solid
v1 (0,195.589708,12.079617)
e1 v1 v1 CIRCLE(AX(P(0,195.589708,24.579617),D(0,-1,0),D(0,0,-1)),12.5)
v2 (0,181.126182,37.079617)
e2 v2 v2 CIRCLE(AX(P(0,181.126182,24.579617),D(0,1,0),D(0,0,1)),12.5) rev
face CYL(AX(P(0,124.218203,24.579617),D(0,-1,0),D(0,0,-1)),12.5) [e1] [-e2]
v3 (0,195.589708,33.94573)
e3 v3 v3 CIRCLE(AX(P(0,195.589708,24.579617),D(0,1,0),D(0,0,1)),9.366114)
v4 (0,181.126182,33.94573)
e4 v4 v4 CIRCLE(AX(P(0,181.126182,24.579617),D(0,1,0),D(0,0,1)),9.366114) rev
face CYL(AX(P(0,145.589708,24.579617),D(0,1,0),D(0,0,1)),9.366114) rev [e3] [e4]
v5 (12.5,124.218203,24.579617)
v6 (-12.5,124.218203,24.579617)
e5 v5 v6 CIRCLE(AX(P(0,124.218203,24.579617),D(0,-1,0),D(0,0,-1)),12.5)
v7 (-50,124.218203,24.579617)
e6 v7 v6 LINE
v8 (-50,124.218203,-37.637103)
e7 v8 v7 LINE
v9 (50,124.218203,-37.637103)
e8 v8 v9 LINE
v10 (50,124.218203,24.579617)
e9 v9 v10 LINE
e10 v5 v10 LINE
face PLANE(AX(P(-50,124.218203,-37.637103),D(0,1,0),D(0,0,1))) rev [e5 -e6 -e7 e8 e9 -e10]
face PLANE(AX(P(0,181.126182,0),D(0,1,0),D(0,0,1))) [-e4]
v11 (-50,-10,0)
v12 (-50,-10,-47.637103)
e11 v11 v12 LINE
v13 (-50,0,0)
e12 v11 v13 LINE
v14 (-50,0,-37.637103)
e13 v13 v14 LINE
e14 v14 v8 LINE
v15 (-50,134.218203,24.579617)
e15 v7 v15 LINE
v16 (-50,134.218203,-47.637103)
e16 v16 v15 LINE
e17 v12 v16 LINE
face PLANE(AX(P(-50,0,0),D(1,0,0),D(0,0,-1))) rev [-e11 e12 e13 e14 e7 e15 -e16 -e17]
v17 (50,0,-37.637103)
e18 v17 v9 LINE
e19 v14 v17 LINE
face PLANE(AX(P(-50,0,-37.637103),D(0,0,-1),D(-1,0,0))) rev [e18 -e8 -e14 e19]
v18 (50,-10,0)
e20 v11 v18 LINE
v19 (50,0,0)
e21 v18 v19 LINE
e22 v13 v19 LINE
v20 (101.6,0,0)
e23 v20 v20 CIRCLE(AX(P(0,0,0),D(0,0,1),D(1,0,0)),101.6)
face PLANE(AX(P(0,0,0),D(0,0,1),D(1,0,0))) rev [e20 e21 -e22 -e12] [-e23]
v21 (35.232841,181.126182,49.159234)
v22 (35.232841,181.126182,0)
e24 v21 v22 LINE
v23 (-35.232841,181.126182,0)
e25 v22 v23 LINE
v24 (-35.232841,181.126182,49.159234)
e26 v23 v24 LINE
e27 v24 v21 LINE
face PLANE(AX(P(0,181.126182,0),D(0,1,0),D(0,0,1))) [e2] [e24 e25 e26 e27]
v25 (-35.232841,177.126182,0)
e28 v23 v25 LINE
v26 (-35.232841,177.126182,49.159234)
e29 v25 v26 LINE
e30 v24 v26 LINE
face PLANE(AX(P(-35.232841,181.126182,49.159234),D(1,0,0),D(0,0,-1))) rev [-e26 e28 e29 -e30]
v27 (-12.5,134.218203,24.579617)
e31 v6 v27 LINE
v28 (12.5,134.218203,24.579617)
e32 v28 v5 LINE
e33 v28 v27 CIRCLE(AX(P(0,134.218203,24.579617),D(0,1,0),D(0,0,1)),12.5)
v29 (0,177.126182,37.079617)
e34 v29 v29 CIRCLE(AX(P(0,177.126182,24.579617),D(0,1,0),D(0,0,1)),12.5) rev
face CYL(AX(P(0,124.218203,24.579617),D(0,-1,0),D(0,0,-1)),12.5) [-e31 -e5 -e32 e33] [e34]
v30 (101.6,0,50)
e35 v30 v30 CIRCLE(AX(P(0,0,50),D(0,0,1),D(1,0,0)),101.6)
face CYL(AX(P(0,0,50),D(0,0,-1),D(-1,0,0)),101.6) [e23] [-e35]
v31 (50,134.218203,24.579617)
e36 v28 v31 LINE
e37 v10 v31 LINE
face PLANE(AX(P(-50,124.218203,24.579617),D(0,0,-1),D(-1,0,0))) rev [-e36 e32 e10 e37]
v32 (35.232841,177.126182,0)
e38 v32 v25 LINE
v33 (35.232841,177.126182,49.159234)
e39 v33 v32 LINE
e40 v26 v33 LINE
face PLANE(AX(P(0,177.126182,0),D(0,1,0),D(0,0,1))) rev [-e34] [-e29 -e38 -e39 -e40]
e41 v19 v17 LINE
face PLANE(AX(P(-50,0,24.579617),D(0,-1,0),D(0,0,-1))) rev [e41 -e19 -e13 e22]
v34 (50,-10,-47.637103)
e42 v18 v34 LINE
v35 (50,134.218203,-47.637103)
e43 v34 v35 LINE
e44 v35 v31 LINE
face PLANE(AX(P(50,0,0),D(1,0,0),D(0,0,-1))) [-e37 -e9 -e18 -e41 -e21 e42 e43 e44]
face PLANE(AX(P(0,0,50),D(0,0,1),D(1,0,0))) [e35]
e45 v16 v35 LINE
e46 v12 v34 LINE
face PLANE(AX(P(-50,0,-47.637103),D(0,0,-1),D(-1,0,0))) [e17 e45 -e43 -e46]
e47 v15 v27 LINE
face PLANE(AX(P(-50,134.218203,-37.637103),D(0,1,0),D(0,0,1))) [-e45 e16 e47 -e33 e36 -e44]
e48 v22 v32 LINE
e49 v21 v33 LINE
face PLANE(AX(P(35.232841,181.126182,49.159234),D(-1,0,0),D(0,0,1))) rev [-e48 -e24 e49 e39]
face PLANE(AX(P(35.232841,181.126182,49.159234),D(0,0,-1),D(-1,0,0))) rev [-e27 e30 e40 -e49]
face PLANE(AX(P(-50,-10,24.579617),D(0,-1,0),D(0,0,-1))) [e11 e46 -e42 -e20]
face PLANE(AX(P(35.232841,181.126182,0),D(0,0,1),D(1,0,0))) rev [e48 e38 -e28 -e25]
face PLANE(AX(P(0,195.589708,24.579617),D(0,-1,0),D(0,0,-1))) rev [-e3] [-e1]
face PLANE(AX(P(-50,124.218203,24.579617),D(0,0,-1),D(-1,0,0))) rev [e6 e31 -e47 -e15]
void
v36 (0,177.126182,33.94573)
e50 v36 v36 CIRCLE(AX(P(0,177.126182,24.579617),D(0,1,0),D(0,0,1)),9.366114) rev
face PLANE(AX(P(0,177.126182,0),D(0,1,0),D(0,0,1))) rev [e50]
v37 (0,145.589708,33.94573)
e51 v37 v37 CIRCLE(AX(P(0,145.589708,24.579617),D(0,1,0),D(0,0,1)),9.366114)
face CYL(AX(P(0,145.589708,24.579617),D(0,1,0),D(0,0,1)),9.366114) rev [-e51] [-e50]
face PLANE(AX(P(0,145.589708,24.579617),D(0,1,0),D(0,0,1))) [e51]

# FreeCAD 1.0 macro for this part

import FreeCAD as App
import Part
import Sketcher

V = App.Vector


def add_polygon(sketch, points):
    """Adds a closed chain of lines whose ends are joined by coincident constraints."""
    first, n = sketch.GeometryCount, len(points)
    for a, b in zip(points, points[1:] + points[:1]):
        sketch.addGeometry(Part.LineSegment(App.Vector(*a, 0), App.Vector(*b, 0)), False)
    for i in range(n):
        sketch.addConstraint(Sketcher.Constraint("Coincident", first + i, 2, first + (i + 1) % n, 1))

doc = App.newDocument("Part")
params = doc.addObject("Spreadsheet::Sheet", "Params")
for row, (alias, value) in enumerate([
    ("sketch1_diameter", "203.2 mm"),
    ("pad1_length", "50 mm"),
    ("sketch2_height", "12.5 mm"),
    ("revolution_angle", "360 deg"),
    ("sketch3_width", "10 mm"),
    ("pad2_length", "50 mm"),
    ("pad2_length2", "50 mm"),
    ("pocket1_length", "50 mm"),
    ("pad3_length", "4 mm"),
], start=1):
    params.set(f"A{row}", alias)
    params.set(f"B{row}", "=" + value)
    params.setAlias(f"B{row}", alias)

body = doc.addObject("PartDesign::Body", "Body")

sketch1 = body.newObject("Sketcher::SketchObject", "Sketch")
sketch1.AttachmentSupport = (doc.getObject("XY_Plane"), [""])
sketch1.MapMode = "FlatFace"
sketch1.addGeometry(Part.Circle(V(0, 0, 0), V(0, 0, 1), 101.6), False)
sketch1.addConstraint([
    Sketcher.Constraint("Coincident", 0, 3, -1, 1),
    Sketcher.Constraint("Diameter", 0, 203.2),
])
sketch1.setExpression("Constraints[1]", "Params.sketch1_diameter")
pad1 = body.newObject("PartDesign::Pad", "Pad")
pad1.Profile = sketch1
pad1.setExpression("Length", "Params.pad1_length")
body2 = doc.addObject("PartDesign::Body", "Body001")

sketch2 = body2.newObject("Sketcher::SketchObject", "Sketch001")
sketch2.AttachmentSupport = (doc.getObject("YZ_Plane001"), [""])
sketch2.MapMode = "FlatFace"
add_polygon(sketch2, [(195.589708, 37.079617), (124.218203, 37.079617), (124.218203, 24.579617), (195.589708, 24.579617)])
sketch2.addGeometry(Part.LineSegment(V(124.218203, 24.579617, 0), V(195.589708, 24.579617, 0)), True)
sketch2.addConstraint([
    Sketcher.Constraint("Horizontal", 0),
    Sketcher.Constraint("Vertical", 1),
    Sketcher.Constraint("Horizontal", 2),
    Sketcher.Constraint("Vertical", 3),
    Sketcher.Constraint("Horizontal", 4),
    Sketcher.Constraint("Coincident", 4, 1, 1, 2),
    Sketcher.Constraint("Vertical", 3, 2, 4, 2),
    Sketcher.Constraint("DistanceY", 1, 2, 1, 1, 12.5),
    Sketcher.Constraint("DistanceX", 0, 2, 0, 1, 71.371505),
    Sketcher.Constraint("DistanceX", -1, 1, 2, 2, 195.589708),
    Sketcher.Constraint("DistanceY", -1, 1, 0, 2, 37.079617),
])
sketch2.setExpression("Constraints[11]", "Params.sketch2_height")
revolution = body2.newObject("PartDesign::Revolution", "Revolution")
revolution.Profile = sketch2
revolution.ReferenceAxis = (sketch2, ["Axis0"])
revolution.setExpression("Angle", "Params.revolution_angle")
body.AllowCompound = True
doc.recompute()

boolean = body.newObject("PartDesign::Boolean", "Boolean")
boolean.Type = "Fuse"
boolean.addObjects([body2])

sketch3 = body.newObject("Sketcher::SketchObject", "Sketch002")
sketch3.AttachmentSupport = (doc.getObject("YZ_Plane"), [""])
sketch3.MapMode = "FlatFace"
add_polygon(sketch3, [(0, -37.637103), (0, 24.579617), (-10, 24.579617), (-10, -47.637103), (134.218203, -47.637103), (134.218203, 24.579617), (124.218203, 24.579617), (124.218203, -37.637103)])
sketch3.addConstraint([
    Sketcher.Constraint("Vertical", 0),
    Sketcher.Constraint("Horizontal", 1),
    Sketcher.Constraint("Vertical", 2),
    Sketcher.Constraint("Horizontal", 3),
    Sketcher.Constraint("Vertical", 4),
    Sketcher.Constraint("Horizontal", 5),
    Sketcher.Constraint("Vertical", 6),
    Sketcher.Constraint("Horizontal", 7),
    Sketcher.Constraint("PointOnObject", 0, 2, -2),
    Sketcher.Constraint("Horizontal", 1, 2, 4, 2),
    Sketcher.Constraint("Equal", 1, 5),
    Sketcher.Constraint("DistanceX", 1, 2, 1, 1, 10.0),
    Sketcher.Constraint("DistanceY", 3, 2, 6, 2, 10.0),
    Sketcher.Constraint("DistanceY", 0, 1, 0, 2, 62.21672),
    Sketcher.Constraint("DistanceX", 3, 1, 3, 2, 144.218203),
    Sketcher.Constraint("DistanceY", -1, 1, 0, 2, 24.579617),
])
sketch3.setExpression("Constraints[19]", "Params.sketch3_width")
pad2 = body.newObject("PartDesign::Pad", "Pad001")
pad2.Profile = sketch3
pad2.Type = "TwoLengths"
pad2.setExpression("Length", "Params.pad2_length")
pad2.setExpression("Length2", "Params.pad2_length2")

sketch4 = body.newObject("Sketcher::SketchObject", "Sketch003")
sketch4.AttachmentSupport = (doc.getObject("XZ_Plane"), [""])
sketch4.MapMode = "FlatFace"
sketch4.AttachmentOffset = App.Placement(V(0, 0, -195.589708), App.Rotation())
sketch4.addGeometry(Part.Circle(V(0, 24.579617, 0), V(0, 0, 1), 9.366114), False)
sketch4.addConstraint([
    Sketcher.Constraint("PointOnObject", 0, 3, -2),
    Sketcher.Constraint("Diameter", 0, 18.732227),
    Sketcher.Constraint("DistanceY", -1, 1, 0, 3, 24.579617),
])
pocket1 = body.newObject("PartDesign::Pocket", "Pocket")
pocket1.Profile = sketch4
pocket1.setExpression("Length", "Params.pocket1_length")
pocket1.Reversed = True

sketch5 = body.newObject("Sketcher::SketchObject", "Sketch004")
sketch5.AttachmentSupport = (doc.getObject("XZ_Plane"), [""])
sketch5.MapMode = "FlatFace"
sketch5.AttachmentOffset = App.Placement(V(0, 0, -177.126182), App.Rotation())
add_polygon(sketch5, [(-35.232841, 0), (-35.232841, 49.159234), (35.232841, 49.159234), (35.232841, 0)])
sketch5.addConstraint([
    Sketcher.Constraint("Vertical", 0),
    Sketcher.Constraint("Horizontal", 1),
    Sketcher.Constraint("Vertical", 2),
    Sketcher.Constraint("Horizontal", 3),
    Sketcher.Constraint("Symmetric", 2, 2, 3, 2, -1, 1),
    Sketcher.Constraint("DistanceX", 1, 1, 1, 2, 70.465683),
    Sketcher.Constraint("DistanceY", 0, 1, 0, 2, 49.159234),
])
pad3 = body.newObject("PartDesign::Pad", "Pad002")
pad3.Profile = sketch5
pad3.setExpression("Length", "Params.pad3_length")
pad3.Reversed = True

doc.recompute()
